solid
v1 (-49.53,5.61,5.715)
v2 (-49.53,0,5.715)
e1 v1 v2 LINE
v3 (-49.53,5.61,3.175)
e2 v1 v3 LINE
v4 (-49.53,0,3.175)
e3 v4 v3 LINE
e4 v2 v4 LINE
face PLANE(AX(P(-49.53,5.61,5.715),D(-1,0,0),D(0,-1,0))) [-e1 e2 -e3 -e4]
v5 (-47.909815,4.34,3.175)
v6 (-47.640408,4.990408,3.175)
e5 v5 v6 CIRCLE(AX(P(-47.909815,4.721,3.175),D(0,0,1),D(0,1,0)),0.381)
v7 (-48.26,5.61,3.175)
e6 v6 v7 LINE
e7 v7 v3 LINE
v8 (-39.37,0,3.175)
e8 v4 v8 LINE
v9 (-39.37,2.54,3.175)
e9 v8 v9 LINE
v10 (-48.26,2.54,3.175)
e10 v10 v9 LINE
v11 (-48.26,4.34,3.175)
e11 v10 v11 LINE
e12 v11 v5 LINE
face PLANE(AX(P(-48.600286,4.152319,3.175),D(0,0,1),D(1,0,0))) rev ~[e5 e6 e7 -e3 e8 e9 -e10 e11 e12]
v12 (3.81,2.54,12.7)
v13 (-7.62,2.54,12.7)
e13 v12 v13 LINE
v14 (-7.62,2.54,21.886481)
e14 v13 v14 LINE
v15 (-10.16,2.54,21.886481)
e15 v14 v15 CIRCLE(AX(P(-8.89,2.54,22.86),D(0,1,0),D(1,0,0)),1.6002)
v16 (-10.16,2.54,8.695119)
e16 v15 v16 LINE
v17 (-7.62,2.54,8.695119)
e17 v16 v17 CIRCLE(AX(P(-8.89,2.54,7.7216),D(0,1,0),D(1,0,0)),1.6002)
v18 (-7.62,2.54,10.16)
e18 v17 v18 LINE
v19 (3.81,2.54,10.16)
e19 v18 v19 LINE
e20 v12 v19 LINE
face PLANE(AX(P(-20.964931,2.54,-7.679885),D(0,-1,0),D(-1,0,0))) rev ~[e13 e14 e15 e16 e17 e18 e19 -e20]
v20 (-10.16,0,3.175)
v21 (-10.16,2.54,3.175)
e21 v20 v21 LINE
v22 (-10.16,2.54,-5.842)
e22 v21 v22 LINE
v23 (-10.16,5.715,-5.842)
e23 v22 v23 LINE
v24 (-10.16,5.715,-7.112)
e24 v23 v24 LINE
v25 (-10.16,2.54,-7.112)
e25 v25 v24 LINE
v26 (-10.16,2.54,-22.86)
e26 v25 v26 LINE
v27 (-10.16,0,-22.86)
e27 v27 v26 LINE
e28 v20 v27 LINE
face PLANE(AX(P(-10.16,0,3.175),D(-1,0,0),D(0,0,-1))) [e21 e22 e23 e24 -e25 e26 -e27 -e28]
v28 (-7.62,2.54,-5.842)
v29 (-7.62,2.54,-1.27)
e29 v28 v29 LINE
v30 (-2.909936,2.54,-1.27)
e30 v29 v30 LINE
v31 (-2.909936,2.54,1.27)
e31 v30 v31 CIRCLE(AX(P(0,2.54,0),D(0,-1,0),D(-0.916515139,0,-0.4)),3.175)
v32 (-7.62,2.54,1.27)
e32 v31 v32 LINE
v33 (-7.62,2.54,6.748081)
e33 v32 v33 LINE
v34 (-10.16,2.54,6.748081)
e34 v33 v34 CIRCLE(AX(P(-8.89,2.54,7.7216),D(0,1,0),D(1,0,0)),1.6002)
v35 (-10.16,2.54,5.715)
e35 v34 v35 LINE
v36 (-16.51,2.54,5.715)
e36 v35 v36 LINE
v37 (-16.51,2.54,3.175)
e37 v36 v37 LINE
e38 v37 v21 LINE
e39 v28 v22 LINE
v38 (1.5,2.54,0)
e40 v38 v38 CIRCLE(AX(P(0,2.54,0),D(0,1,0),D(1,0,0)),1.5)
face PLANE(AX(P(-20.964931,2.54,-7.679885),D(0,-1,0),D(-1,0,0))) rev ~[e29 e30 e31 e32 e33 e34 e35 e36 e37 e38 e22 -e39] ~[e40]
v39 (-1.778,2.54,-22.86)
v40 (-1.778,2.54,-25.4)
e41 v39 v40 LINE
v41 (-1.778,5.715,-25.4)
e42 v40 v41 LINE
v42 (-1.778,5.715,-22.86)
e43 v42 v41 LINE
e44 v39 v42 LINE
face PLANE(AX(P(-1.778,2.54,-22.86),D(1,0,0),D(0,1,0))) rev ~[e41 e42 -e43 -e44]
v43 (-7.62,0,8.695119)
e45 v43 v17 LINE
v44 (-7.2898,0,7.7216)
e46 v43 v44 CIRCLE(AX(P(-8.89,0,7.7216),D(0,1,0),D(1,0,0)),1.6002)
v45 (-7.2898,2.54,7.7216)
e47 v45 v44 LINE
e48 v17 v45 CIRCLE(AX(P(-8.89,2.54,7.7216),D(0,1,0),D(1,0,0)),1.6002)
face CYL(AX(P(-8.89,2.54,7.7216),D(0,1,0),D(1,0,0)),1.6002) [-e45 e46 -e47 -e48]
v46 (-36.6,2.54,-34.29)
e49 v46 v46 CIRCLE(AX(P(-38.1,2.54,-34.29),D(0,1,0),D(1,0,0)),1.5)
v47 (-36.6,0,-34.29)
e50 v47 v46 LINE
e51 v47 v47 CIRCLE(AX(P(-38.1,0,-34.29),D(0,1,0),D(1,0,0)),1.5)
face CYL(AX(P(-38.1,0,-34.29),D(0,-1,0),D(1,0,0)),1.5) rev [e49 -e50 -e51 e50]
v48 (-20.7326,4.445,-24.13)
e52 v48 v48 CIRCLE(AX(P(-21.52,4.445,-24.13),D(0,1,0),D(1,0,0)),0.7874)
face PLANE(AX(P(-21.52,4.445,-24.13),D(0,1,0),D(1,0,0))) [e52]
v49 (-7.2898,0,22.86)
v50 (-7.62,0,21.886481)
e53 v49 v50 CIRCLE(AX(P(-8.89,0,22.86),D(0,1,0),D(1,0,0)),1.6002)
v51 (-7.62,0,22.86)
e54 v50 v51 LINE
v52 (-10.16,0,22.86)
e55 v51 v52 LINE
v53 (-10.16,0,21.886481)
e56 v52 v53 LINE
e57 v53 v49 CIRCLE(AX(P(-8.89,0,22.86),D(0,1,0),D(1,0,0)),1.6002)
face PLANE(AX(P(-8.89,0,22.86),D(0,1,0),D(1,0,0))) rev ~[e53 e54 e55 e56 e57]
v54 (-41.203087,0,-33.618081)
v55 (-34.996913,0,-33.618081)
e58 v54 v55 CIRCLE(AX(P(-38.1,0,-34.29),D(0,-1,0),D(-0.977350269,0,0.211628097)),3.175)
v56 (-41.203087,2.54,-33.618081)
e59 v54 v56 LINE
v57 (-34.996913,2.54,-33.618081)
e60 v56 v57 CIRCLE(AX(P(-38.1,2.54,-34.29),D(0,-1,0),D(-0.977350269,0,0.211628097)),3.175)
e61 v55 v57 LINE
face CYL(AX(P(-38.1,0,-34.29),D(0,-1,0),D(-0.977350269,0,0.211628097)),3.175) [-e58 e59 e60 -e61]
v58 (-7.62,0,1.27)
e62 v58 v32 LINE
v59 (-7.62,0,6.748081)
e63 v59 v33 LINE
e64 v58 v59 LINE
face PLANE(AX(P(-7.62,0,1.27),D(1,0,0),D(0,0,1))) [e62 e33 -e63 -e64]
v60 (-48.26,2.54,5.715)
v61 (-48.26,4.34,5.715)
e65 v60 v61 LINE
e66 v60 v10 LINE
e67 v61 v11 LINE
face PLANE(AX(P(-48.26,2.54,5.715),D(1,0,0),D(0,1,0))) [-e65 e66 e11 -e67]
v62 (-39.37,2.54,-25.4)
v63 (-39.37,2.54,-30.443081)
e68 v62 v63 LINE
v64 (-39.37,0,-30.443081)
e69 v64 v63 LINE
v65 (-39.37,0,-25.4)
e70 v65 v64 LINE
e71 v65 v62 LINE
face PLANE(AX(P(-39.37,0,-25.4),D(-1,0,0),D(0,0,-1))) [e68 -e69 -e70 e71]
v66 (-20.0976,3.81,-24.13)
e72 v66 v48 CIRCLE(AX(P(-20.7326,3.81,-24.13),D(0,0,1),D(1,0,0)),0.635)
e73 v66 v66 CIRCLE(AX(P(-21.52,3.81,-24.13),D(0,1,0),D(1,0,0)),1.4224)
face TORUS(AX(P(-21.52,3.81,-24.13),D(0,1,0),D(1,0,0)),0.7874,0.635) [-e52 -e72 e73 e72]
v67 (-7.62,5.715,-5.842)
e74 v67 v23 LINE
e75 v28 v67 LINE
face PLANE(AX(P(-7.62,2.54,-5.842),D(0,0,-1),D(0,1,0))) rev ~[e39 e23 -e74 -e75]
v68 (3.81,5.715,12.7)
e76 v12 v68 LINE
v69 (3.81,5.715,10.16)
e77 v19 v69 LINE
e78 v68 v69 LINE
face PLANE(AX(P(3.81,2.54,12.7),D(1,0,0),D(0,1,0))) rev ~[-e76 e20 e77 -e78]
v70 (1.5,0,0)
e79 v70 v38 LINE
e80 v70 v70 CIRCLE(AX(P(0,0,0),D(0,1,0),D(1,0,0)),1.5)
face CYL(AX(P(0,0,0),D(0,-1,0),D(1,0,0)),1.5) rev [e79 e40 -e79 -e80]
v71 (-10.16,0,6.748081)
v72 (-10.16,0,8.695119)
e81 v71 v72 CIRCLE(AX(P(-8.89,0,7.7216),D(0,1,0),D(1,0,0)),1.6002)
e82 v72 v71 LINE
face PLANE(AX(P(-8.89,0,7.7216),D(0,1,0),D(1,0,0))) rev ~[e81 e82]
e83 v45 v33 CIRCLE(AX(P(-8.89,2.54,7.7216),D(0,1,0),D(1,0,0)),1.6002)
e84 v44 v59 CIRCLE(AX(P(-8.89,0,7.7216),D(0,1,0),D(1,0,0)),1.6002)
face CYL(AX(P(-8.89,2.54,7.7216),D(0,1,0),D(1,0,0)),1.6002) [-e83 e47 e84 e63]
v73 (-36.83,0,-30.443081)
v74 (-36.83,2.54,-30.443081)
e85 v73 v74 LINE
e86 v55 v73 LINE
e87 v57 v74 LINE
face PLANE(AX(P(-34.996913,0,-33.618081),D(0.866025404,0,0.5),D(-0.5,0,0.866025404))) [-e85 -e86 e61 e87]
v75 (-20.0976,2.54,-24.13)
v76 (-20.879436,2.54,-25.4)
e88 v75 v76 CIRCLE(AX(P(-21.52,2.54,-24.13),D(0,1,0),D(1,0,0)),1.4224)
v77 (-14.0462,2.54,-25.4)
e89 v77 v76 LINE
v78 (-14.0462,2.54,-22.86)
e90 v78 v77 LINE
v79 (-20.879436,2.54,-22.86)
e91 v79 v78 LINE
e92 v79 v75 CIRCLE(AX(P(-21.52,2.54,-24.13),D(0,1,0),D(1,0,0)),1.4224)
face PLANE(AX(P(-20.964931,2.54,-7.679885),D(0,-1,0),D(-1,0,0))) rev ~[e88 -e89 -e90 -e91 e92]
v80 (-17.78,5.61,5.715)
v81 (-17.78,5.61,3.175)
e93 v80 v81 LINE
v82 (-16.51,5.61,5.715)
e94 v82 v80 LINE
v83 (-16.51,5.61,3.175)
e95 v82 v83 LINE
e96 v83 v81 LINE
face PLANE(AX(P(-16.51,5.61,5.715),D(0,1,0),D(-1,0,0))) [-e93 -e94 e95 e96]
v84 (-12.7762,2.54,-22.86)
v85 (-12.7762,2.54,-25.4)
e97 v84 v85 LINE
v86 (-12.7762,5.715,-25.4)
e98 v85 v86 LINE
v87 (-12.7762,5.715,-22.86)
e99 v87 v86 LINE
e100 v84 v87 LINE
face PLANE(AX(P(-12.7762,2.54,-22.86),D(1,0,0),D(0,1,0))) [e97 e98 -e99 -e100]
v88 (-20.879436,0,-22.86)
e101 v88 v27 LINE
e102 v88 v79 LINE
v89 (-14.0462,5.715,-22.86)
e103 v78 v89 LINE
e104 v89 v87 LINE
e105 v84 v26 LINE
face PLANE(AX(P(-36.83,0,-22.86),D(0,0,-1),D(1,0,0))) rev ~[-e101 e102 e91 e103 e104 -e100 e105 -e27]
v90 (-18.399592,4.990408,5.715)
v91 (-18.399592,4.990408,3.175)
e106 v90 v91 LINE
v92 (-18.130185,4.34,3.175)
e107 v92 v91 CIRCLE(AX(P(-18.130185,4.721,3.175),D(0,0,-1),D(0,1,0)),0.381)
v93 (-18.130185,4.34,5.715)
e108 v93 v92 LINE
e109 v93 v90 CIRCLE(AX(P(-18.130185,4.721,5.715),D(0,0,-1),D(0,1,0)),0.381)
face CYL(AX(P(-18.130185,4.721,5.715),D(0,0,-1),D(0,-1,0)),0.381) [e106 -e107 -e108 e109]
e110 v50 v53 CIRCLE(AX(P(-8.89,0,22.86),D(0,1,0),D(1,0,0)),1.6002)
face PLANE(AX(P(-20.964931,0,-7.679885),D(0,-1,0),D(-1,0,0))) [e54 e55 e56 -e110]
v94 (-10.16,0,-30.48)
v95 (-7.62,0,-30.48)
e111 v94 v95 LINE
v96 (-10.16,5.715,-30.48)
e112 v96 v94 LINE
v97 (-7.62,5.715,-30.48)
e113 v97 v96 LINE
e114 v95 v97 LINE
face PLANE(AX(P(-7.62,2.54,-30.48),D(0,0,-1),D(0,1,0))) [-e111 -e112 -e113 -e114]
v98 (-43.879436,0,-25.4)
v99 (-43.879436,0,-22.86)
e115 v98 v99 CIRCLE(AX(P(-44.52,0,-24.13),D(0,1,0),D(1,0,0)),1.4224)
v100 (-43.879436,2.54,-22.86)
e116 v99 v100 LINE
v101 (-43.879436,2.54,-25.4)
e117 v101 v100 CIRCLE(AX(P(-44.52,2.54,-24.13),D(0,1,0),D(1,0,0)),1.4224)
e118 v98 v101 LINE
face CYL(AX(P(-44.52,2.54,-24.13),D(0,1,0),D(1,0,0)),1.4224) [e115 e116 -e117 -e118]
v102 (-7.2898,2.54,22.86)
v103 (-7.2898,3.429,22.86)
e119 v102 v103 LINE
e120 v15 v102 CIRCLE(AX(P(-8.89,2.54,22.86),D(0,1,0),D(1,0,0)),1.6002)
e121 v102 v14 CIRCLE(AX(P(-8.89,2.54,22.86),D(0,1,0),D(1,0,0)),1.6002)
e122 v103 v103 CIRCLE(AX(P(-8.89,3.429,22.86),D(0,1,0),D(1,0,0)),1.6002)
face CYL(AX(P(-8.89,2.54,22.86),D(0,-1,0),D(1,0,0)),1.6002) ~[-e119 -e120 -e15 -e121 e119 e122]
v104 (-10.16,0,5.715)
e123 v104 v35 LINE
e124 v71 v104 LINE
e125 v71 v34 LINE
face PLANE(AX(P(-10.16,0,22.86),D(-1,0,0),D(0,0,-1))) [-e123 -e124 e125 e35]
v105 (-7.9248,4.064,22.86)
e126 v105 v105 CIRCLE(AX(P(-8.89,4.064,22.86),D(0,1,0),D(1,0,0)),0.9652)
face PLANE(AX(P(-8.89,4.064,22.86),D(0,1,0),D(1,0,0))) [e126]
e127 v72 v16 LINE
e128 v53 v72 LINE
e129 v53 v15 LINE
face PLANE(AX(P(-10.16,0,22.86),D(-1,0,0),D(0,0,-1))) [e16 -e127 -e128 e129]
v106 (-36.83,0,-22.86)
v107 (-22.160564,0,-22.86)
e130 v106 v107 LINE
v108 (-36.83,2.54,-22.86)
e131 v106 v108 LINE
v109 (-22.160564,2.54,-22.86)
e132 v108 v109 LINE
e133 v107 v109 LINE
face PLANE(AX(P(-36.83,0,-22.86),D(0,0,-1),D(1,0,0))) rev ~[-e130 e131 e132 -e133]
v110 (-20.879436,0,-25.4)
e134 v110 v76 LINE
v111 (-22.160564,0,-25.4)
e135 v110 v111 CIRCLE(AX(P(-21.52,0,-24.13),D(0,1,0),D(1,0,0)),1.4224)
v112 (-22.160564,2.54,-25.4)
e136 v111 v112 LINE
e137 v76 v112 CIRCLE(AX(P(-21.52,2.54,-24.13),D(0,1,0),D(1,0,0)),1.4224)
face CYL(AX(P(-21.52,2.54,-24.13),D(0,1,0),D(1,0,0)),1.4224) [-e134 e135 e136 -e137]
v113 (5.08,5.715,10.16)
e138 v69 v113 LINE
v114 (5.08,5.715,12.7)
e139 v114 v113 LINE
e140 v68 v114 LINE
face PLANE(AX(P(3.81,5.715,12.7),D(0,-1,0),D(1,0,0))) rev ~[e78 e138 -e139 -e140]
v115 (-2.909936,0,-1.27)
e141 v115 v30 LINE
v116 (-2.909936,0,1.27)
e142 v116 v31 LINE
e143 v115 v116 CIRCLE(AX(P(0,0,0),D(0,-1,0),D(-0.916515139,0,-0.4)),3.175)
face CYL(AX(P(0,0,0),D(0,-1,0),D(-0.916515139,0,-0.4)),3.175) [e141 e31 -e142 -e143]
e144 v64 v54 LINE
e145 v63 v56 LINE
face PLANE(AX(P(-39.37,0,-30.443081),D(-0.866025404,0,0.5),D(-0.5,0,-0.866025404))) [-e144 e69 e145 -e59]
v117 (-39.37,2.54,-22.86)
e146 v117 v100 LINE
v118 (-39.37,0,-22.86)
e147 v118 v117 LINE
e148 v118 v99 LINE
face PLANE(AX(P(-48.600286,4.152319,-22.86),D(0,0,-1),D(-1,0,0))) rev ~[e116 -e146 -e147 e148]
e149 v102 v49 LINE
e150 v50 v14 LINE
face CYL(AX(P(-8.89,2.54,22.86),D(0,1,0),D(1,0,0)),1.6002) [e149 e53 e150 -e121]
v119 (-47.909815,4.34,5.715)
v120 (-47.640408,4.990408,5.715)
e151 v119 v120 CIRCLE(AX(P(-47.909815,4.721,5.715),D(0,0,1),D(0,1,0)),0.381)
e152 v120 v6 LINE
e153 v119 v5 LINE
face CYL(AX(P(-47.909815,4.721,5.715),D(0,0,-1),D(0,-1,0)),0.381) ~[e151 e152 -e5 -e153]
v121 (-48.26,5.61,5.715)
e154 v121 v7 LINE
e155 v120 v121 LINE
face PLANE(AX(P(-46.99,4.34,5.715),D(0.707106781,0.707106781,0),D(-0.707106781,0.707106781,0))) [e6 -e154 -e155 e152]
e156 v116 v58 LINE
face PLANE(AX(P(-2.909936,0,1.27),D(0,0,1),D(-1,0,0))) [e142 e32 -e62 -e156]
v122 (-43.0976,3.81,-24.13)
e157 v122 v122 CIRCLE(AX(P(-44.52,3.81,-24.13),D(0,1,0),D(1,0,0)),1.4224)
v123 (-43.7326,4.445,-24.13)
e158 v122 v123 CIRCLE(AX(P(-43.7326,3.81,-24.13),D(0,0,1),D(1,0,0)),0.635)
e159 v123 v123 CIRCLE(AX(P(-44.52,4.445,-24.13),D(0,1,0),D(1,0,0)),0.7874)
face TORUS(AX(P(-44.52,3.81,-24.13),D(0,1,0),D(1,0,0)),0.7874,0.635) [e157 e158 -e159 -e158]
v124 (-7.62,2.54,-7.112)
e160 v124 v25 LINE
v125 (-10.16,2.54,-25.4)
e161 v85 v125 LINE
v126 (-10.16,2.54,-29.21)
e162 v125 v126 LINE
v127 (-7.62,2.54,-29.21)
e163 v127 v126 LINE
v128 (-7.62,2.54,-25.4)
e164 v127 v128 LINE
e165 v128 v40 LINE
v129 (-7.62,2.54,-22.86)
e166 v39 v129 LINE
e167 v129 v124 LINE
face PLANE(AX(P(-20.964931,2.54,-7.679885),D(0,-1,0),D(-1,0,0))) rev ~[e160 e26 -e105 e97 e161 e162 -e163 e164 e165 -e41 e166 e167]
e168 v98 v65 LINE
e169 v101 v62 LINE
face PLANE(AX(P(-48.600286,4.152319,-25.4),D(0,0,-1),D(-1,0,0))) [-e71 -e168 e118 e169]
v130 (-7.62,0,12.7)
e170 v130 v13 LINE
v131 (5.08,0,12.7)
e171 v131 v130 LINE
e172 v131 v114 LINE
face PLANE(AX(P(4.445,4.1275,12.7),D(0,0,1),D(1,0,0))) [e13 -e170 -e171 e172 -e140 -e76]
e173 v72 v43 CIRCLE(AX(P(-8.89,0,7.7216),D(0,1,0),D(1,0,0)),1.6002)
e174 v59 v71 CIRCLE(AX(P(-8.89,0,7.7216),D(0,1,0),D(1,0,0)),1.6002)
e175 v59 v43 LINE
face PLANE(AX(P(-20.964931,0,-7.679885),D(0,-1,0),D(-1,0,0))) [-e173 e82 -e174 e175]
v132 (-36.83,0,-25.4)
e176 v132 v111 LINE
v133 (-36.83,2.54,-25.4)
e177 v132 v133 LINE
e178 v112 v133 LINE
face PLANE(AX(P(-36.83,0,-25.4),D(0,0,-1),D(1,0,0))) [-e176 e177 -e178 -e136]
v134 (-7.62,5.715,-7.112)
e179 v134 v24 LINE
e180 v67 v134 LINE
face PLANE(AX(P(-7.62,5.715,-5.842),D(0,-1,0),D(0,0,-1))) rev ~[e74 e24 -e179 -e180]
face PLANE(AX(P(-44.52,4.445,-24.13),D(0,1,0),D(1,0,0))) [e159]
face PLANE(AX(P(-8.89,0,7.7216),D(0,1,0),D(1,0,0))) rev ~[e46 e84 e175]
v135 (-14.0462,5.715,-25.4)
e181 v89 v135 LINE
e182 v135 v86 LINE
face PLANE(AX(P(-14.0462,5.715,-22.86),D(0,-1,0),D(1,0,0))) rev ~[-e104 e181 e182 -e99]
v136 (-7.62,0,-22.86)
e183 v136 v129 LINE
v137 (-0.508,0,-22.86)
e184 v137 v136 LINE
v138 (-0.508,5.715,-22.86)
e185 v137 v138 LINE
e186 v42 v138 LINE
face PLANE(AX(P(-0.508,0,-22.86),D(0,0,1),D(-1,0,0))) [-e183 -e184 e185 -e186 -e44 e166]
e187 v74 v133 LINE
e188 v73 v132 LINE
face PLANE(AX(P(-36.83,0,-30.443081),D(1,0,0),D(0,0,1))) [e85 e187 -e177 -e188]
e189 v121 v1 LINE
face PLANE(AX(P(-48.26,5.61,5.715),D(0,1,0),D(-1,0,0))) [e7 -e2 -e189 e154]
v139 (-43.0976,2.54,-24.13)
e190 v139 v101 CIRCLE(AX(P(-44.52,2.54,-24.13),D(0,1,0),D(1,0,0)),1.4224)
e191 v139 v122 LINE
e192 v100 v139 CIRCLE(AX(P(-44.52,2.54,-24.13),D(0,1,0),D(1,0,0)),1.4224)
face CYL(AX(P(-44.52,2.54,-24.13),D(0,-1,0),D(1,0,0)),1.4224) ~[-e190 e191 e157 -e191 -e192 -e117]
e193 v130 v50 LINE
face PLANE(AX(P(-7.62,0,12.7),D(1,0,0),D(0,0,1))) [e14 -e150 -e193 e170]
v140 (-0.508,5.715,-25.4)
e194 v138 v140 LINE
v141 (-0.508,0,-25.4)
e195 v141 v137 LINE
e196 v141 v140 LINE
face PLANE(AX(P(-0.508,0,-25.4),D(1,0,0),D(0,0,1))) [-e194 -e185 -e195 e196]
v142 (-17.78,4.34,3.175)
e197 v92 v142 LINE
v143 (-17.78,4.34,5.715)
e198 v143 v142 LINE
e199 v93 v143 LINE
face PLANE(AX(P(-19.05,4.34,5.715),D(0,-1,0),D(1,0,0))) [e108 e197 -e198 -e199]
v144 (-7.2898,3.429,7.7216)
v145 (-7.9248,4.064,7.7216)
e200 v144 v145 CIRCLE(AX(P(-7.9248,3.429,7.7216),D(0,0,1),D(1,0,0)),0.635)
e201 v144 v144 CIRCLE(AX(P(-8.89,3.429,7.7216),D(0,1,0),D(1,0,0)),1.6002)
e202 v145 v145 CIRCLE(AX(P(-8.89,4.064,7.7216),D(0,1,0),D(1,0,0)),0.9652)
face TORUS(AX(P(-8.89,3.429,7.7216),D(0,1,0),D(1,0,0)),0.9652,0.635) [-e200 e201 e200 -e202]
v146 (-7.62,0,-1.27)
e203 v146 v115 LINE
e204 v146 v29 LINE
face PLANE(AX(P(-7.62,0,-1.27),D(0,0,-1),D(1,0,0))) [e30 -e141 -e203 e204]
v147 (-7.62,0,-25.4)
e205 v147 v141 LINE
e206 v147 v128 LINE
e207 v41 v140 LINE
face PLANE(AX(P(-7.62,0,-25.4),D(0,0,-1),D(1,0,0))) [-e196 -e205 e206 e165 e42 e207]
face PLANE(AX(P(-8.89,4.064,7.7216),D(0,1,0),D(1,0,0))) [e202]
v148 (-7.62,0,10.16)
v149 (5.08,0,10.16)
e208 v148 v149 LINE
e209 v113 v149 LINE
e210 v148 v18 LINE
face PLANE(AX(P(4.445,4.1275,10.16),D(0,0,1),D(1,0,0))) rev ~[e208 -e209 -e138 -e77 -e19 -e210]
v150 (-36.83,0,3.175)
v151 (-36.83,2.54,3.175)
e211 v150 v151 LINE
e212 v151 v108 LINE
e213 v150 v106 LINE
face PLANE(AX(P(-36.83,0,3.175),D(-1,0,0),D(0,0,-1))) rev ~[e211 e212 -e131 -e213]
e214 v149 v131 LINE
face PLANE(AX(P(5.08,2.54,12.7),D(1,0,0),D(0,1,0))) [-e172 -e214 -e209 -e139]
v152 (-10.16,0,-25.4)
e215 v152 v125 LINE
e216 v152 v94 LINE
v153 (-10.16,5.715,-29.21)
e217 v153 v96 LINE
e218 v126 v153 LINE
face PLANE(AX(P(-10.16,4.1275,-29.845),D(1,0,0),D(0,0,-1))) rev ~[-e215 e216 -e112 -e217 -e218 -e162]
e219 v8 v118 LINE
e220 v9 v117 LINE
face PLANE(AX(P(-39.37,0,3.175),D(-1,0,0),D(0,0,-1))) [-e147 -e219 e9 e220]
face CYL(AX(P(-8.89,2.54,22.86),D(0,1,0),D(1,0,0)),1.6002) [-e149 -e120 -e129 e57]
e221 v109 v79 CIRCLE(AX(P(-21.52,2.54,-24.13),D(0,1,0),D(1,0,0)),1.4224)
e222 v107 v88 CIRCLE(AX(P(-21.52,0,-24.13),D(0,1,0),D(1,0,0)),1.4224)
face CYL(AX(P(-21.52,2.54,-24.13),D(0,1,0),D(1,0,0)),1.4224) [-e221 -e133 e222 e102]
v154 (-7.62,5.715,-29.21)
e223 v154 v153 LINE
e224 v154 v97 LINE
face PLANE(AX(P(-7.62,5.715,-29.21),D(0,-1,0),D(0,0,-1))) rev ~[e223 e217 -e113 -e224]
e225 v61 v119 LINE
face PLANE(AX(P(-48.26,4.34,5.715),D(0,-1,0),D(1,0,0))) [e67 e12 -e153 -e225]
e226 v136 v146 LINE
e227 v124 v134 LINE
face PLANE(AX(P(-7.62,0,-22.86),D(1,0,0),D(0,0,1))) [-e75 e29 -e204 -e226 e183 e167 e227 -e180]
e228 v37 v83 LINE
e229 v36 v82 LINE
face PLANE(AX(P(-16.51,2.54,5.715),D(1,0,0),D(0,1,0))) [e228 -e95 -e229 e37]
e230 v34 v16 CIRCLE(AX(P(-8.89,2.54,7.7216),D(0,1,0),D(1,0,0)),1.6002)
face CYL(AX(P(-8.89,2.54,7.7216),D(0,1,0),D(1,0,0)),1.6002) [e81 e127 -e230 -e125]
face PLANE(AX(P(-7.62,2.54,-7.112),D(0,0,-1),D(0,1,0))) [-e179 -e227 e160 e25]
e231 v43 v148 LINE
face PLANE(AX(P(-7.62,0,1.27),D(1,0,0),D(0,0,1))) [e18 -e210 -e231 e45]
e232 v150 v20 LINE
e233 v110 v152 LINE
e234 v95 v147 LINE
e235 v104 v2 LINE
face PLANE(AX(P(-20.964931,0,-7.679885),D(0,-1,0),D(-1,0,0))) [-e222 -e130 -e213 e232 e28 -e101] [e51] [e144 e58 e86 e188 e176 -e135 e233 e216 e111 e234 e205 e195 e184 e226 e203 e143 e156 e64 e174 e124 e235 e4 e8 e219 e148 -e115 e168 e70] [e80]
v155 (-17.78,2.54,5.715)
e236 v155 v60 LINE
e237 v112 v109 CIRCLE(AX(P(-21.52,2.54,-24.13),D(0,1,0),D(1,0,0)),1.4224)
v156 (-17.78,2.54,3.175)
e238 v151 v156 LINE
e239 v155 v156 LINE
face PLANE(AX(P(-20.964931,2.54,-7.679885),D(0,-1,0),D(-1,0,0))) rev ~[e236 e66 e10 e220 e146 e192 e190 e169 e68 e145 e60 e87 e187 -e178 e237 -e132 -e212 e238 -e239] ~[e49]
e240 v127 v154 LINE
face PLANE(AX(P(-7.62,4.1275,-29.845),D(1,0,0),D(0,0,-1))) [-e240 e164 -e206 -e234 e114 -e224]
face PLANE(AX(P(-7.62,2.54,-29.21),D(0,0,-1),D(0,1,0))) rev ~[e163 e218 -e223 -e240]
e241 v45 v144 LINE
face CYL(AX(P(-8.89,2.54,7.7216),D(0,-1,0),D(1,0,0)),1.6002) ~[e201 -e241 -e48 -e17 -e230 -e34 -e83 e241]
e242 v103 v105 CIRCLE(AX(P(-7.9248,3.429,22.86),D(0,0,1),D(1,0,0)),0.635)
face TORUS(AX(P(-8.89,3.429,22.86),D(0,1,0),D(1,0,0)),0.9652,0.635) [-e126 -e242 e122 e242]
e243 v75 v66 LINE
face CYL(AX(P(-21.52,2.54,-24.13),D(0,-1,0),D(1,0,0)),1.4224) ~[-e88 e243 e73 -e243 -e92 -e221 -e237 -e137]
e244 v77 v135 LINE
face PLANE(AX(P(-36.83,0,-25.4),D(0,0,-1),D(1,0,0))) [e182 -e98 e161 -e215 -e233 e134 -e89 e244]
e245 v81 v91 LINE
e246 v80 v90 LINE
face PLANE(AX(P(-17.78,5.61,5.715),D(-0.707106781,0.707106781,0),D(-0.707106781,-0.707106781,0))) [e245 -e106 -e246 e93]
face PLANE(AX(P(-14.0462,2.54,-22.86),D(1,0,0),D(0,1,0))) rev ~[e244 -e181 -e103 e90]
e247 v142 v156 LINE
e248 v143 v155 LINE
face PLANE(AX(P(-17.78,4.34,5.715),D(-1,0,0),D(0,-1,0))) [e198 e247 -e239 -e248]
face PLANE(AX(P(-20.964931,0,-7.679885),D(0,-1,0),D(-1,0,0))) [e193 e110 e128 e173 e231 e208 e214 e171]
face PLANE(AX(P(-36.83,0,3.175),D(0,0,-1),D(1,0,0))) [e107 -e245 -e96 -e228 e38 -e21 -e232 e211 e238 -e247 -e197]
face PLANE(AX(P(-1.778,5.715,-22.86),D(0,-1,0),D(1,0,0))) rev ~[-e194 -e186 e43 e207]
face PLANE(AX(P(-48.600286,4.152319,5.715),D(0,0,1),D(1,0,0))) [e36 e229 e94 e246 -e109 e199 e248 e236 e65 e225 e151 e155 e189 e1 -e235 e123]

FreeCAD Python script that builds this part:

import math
import FreeCAD as App
import Part
import Sketcher
Q = App.Units.Quantity


def edges_at(feature, points):
    """Names of the edges that pass closest to the given points."""
    edges = feature.Shape.Edges
    near = lambda p: min(range(len(edges)), key=lambda i: edges[i].distToShape(Part.Vertex(*p))[0])
    return sorted({f"Edge{near(p) + 1}" for p in points})

doc = App.newDocument("Part")
params = doc.addObject("Spreadsheet::Sheet", "Params")
for row, (alias, value) in enumerate([
    ("sketch1_width", "0.1 in"),
    ("sketch1_width2", "0.5 in"),
    ("sketch1_width3", "0.4 in"),
    ("sketch1_height", "0.2 in"),
    ("sketch1_radius", "0.125 in"),
    ("pad1_length", "0.1 in"),
    ("sketch2_width", "0.05 in"),
    ("sketch2_height", "0.125 in"),
    ("pad2_length", "0.1 in"),
    ("sketch3_width", "0.05 in"),
    ("pad3_length", "0.1 in"),
    ("sketch4_height", "0.05 in"),
    ("sketch4_width", "0.125 in"),
    ("pad4_length", "0.1 in"),
    ("sketch5_width", "0.05 in"),
    ("sketch5_height", "0.125 in"),
    ("pad5_length", "0.1 in"),
    ("fillet_radius", "0.015 in"),
    ("pocket1_length", "0.1 in"),
    ("sketch8_diameter", "0.112 in"),
    ("pad6_length", "0.075 in"),
    ("pad6_length2", "0.1 in"),
    ("sketch9_diameter", "0.126 in"),
    ("pad7_length", "0.06 in"),
    ("pad7_length2", "0.1 in"),
    ("fillet2_radius", "0.025 in"),
], start=1):
    params.set(f"A{row}", alias)
    params.set(f"B{row}", "=" + value)
    params.setAlias(f"B{row}", alias)

body = doc.addObject("PartDesign::Body", "Body")

# Sketch on XZ plane
sketch1 = body.newObject("Sketcher::SketchObject", "Sketch")
sketch1.AttachmentSupport = (doc.getObject("XZ_Plane"), [""])
sketch1.MapMode = "FlatFace"
sketch1.addGeometry([
    Part.LineSegment(App.Vector(-10.2, 5.7, 0), App.Vector(-10.2, 22.9, 0)),  # 0
    Part.LineSegment(App.Vector(-10.2, 22.9, 0), App.Vector(-7.6, 22.9, 0)),  # 1
    Part.LineSegment(App.Vector(-7.6, 22.9, 0), App.Vector(-7.6, 12.7, 0)),  # 2
    Part.LineSegment(App.Vector(-7.6, 12.7, 0), App.Vector(5.1, 12.7, 0)),  # 3
    Part.LineSegment(App.Vector(5.1, 12.7, 0), App.Vector(5.1, 10.2, 0)),  # 4
    Part.LineSegment(App.Vector(5.1, 10.2, 0), App.Vector(-7.6, 10.2, 0)),  # 5
    Part.LineSegment(App.Vector(-7.6, 10.2, 0), App.Vector(-7.6, 1.3, 0)),  # 6
    Part.LineSegment(App.Vector(-7.6, 1.3, 0), App.Vector(-2.9, 1.3, 0)),  # 7
    Part.ArcOfCircle(Part.Circle(App.Vector(0, 0, 0), App.Vector(0, 0, 1), 3.2), math.radians(-156), math.radians(156)),  # 8
    Part.LineSegment(App.Vector(-2.9, -1.3, 0), App.Vector(-7.6, -1.3, 0)),  # 9
    Part.LineSegment(App.Vector(-7.6, -1.3, 0), App.Vector(-7.6, -22.9, 0)),  # 10
    Part.LineSegment(App.Vector(-7.6, -22.9, 0), App.Vector(-0.5, -22.9, 0)),  # 11
    Part.LineSegment(App.Vector(-0.5, -22.9, 0), App.Vector(-0.5, -25.4, 0)),  # 12
    Part.LineSegment(App.Vector(-0.5, -25.4, 0), App.Vector(-7.6, -25.4, 0)),  # 13
    Part.LineSegment(App.Vector(-7.6, -25.4, 0), App.Vector(-7.6, -30.5, 0)),  # 14
    Part.LineSegment(App.Vector(-7.6, -30.5, 0), App.Vector(-10.2, -30.5, 0)),  # 15
    Part.LineSegment(App.Vector(-10.2, -30.5, 0), App.Vector(-10.2, -25.4, 0)),  # 16
    Part.LineSegment(App.Vector(-10.2, -25.4, 0), App.Vector(-36.8, -25.4, 0)),  # 17
    Part.LineSegment(App.Vector(-36.8, -25.4, 0), App.Vector(-36.8, -30.4, 0)),  # 18
    Part.LineSegment(App.Vector(-36.8, -30.4, 0), App.Vector(-35, -33.6, 0)),  # 19
    Part.ArcOfCircle(Part.Circle(App.Vector(-38.1, -34.3, 0), App.Vector(0, 0, 1), 3.2), math.radians(168), math.radians(372)),  # 20
    Part.LineSegment(App.Vector(-41.2, -33.6, 0), App.Vector(-39.4, -30.4, 0)),  # 21
    Part.LineSegment(App.Vector(-39.4, -30.4, 0), App.Vector(-39.4, -25.4, 0)),  # 22
    Part.LineSegment(App.Vector(-39.4, -25.4, 0), App.Vector(-49.5, -25.4, 0)),  # 23
    Part.LineSegment(App.Vector(-49.5, -25.4, 0), App.Vector(-49.5, -22.9, 0)),  # 24
    Part.LineSegment(App.Vector(-49.5, -22.9, 0), App.Vector(-39.4, -22.9, 0)),  # 25
    Part.LineSegment(App.Vector(-39.4, -22.9, 0), App.Vector(-39.4, 3.2, 0)),  # 26
    Part.LineSegment(App.Vector(-39.4, 3.2, 0), App.Vector(-49.5, 3.2, 0)),  # 27
    Part.LineSegment(App.Vector(-49.5, 3.2, 0), App.Vector(-49.5, 5.7, 0)),  # 28
    Part.LineSegment(App.Vector(-49.5, 5.7, 0), App.Vector(-10.2, 5.7, 0)),  # 29
    Part.Circle(App.Vector(0, 0, 0), App.Vector(0, 0, 1), 1.5),  # 30
    Part.LineSegment(App.Vector(-36.8, 3.2, 0), App.Vector(-36.8, -22.9, 0)),  # 31
    Part.LineSegment(App.Vector(-36.8, -22.9, 0), App.Vector(-10.2, -22.9, 0)),  # 32
    Part.LineSegment(App.Vector(-10.2, -22.9, 0), App.Vector(-10.2, 3.2, 0)),  # 33
    Part.LineSegment(App.Vector(-10.2, 3.2, 0), App.Vector(-36.8, 3.2, 0)),  # 34
    Part.Circle(App.Vector(-38.1, -34.3, 0), App.Vector(0, 0, 1), 1.5),  # 35
], False)
sketch1.addConstraint([
    Sketcher.Constraint("Coincident", 0, 2, 1, 1),
    Sketcher.Constraint("Coincident", 1, 2, 2, 1),
    Sketcher.Constraint("Coincident", 2, 2, 3, 1),
    Sketcher.Constraint("Coincident", 3, 2, 4, 1),
    Sketcher.Constraint("Coincident", 4, 2, 5, 1),
    Sketcher.Constraint("Coincident", 5, 2, 6, 1),
    Sketcher.Constraint("Coincident", 6, 2, 7, 1),
    Sketcher.Constraint("Coincident", 7, 2, 8, 2),
    Sketcher.Constraint("Coincident", 8, 1, 9, 1),
    Sketcher.Constraint("Coincident", 9, 2, 10, 1),
    Sketcher.Constraint("Coincident", 10, 2, 11, 1),
    Sketcher.Constraint("Coincident", 11, 2, 12, 1),
    Sketcher.Constraint("Coincident", 12, 2, 13, 1),
    Sketcher.Constraint("Coincident", 13, 2, 14, 1),
    Sketcher.Constraint("Coincident", 14, 2, 15, 1),
    Sketcher.Constraint("Coincident", 15, 2, 16, 1),
    Sketcher.Constraint("Coincident", 16, 2, 17, 1),
    Sketcher.Constraint("Coincident", 17, 2, 18, 1),
    Sketcher.Constraint("Coincident", 18, 2, 19, 1),
    Sketcher.Constraint("Coincident", 19, 2, 20, 2),
    Sketcher.Constraint("Coincident", 20, 1, 21, 1),
    Sketcher.Constraint("Coincident", 21, 2, 22, 1),
    Sketcher.Constraint("Coincident", 22, 2, 23, 1),
    Sketcher.Constraint("Coincident", 23, 2, 24, 1),
    Sketcher.Constraint("Coincident", 24, 2, 25, 1),
    Sketcher.Constraint("Coincident", 25, 2, 26, 1),
    Sketcher.Constraint("Coincident", 26, 2, 27, 1),
    Sketcher.Constraint("Coincident", 27, 2, 28, 1),
    Sketcher.Constraint("Coincident", 28, 2, 29, 1),
    Sketcher.Constraint("Coincident", 29, 2, 0, 1),
    Sketcher.Constraint("Coincident", 31, 2, 32, 1),
    Sketcher.Constraint("Coincident", 32, 2, 33, 1),
    Sketcher.Constraint("Coincident", 33, 2, 34, 1),
    Sketcher.Constraint("Coincident", 34, 2, 31, 1),
    Sketcher.Constraint("Vertical", 0),
    Sketcher.Constraint("Horizontal", 1),
    Sketcher.Constraint("Vertical", 2),
    Sketcher.Constraint("Horizontal", 3),
    Sketcher.Constraint("Vertical", 4),
    Sketcher.Constraint("Horizontal", 5),
    Sketcher.Constraint("Vertical", 6),
    Sketcher.Constraint("Horizontal", 7),
    Sketcher.Constraint("Horizontal", 9),
    Sketcher.Constraint("Vertical", 10),
    Sketcher.Constraint("Horizontal", 11),
    Sketcher.Constraint("Vertical", 12),
    Sketcher.Constraint("Horizontal", 13),
    Sketcher.Constraint("Vertical", 14),
    Sketcher.Constraint("Horizontal", 15),
    Sketcher.Constraint("Vertical", 16),
    Sketcher.Constraint("Horizontal", 17),
    Sketcher.Constraint("Vertical", 18),
    Sketcher.Constraint("Vertical", 22),
    Sketcher.Constraint("Horizontal", 23),
    Sketcher.Constraint("Vertical", 24),
    Sketcher.Constraint("Horizontal", 25),
    Sketcher.Constraint("Vertical", 26),
    Sketcher.Constraint("Horizontal", 27),
    Sketcher.Constraint("Vertical", 28),
    Sketcher.Constraint("Horizontal", 29),
    Sketcher.Constraint("Vertical", 31),
    Sketcher.Constraint("Horizontal", 32),
    Sketcher.Constraint("Vertical", 33),
    Sketcher.Constraint("Horizontal", 34),
    Sketcher.Constraint("Coincident", 8, 3, -1, 1),
    Sketcher.Constraint("Coincident", 30, 3, -1, 1),
    Sketcher.Constraint("Coincident", 35, 3, 20, 3),
    Sketcher.Constraint("Equal", 8, 20),
    Sketcher.Constraint("Equal", 30, 35),
    Sketcher.Constraint("Symmetric", 6, 2, 9, 2, -1),
    Sketcher.Constraint("Symmetric", 1, 2, 10, 2, -1),
    Sketcher.Constraint("Symmetric", 0, 2, 32, 2, -1),
    Sketcher.Constraint("Horizontal", 13, 2, 16, 2),
    Sketcher.Constraint("Horizontal", 19, 2, 20, 1),
    Sketcher.Constraint("Horizontal", 18, 2, 21, 2),
    Sketcher.Constraint("Horizontal", 17, 2, 22, 2),
    Sketcher.Constraint("Horizontal", 11, 2, 24, 2),
    Sketcher.Constraint("Horizontal", 27, 2, 33, 2),
    Sketcher.Constraint("Vertical", 10, 2, 13, 2),
    Sketcher.Constraint("Vertical", 0, 2, 15, 2),
    Sketcher.Constraint("Vertical", 22, 2, 25, 2),
    Sketcher.Constraint("Vertical", 24, 2, 27, 2),
    Sketcher.Constraint("Vertical", 18, 2, 31, 2),
    Sketcher.Constraint("Equal", 27, 2),
    Sketcher.Constraint("Equal", 15, 4),
    Sketcher.Constraint("Equal", 4, 12),
    Sketcher.Constraint("Equal", 24, 28),
    Sketcher.Constraint("Equal", 19, 21),
    Sketcher.Constraint("DistanceX", 1, 1, 1, 2, Q("0.1 in")),
    Sketcher.Constraint("DistanceX", 3, 1, 3, 2, Q("0.5 in")),
    Sketcher.Constraint("DistanceX", 23, 2, 23, 1, Q("0.4 in")),
    Sketcher.Constraint("DistanceY", 14, 2, 14, 1, Q("0.2 in")),
    Sketcher.Constraint("DistanceY", 12, 2, -1, 1, Q("1 in")),
    Sketcher.Constraint("Angle", 19, Q("-60 deg")),
    Sketcher.Constraint("Radius", 8, Q("0.125 in")),
    Sketcher.Constraint("DistanceX", 11, 1, 11, 2, Q("0.28 in")),
    Sketcher.Constraint("DistanceX", 17, 2, 17, 1, Q("1.05 in")),
    Sketcher.Constraint("DistanceX", 29, 1, 29, 2, Q("1.55 in")),
    Sketcher.Constraint("DistanceY", 6, 2, 6, 1, Q("0.35 in")),
    Sketcher.Constraint("DistanceX", 20, 3, -1, 1, Q("1.5 in")),
    Sketcher.Constraint("Diameter", 30, Q("3 mm")),
    Sketcher.Constraint("DistanceY", 0, 1, 0, 2, Q("0.675 in")),
    Sketcher.Constraint("DistanceY", 20, 3, -1, 1, Q("1.35 in")),
    Sketcher.Constraint("DistanceY", 19, 2, 18, 2, Q("0.125 in")),
])
sketch1.setExpression("Constraints[88]", "Params.sketch1_width")
sketch1.setExpression("Constraints[89]", "Params.sketch1_width2")
sketch1.setExpression("Constraints[90]", "Params.sketch1_width3")
sketch1.setExpression("Constraints[91]", "Params.sketch1_height")
sketch1.setExpression("Constraints[94]", "Params.sketch1_radius")
pad1 = body.newObject("PartDesign::Pad", "Pad")
pad1.Profile = sketch1
pad1.setExpression("Length", "Params.pad1_length")
pad1.Reversed = True

# Sketch on XY plane
sketch2 = body.newObject("Sketcher::SketchObject", "Sketch001")
sketch2.AttachmentSupport = (doc.getObject("XY_Plane"), [""])
sketch2.MapMode = "FlatFace"
sketch2.AttachmentOffset = App.Placement(App.Vector(0, 0, -0.9 * 25.4), App.Rotation())
sketch2.addGeometry([
    Part.LineSegment(App.Vector(-49.5, 5.6, 0), App.Vector(-49.5, 2.5, 0)),  # 0
    Part.LineSegment(App.Vector(-49.5, 2.5, 0), App.Vector(-48.3, 2.5, 0)),  # 1
    Part.LineSegment(App.Vector(-48.3, 2.5, 0), App.Vector(-48.3, 4.3, 0)),  # 2
    Part.LineSegment(App.Vector(-48.3, 4.3, 0), App.Vector(-47, 4.3, 0)),  # 3
    Part.LineSegment(App.Vector(-47, 4.3, 0), App.Vector(-48.3, 5.6, 0)),  # 4
    Part.LineSegment(App.Vector(-48.3, 5.6, 0), App.Vector(-49.5, 5.6, 0)),  # 5
    Part.LineSegment(App.Vector(-1.8, 5.7, 0), App.Vector(-1.8, 2.5, 0)),  # 6
    Part.LineSegment(App.Vector(-1.8, 2.5, 0), App.Vector(-0.5, 2.5, 0)),  # 7
    Part.LineSegment(App.Vector(-0.5, 2.5, 0), App.Vector(-0.5, 5.7, 0)),  # 8
    Part.LineSegment(App.Vector(-0.5, 5.7, 0), App.Vector(-1.8, 5.7, 0)),  # 9
    Part.LineSegment(App.Vector(-17.8, 2.5, 0), App.Vector(-16.5, 2.5, 0)),  # 10
    Part.LineSegment(App.Vector(-16.5, 2.5, 0), App.Vector(-16.5, 5.6, 0)),  # 11
    Part.LineSegment(App.Vector(-16.5, 5.6, 0), App.Vector(-17.8, 5.6, 0)),  # 12
    Part.LineSegment(App.Vector(-17.8, 5.6, 0), App.Vector(-19.1, 4.3, 0)),  # 13
    Part.LineSegment(App.Vector(-19.1, 4.3, 0), App.Vector(-17.8, 4.3, 0)),  # 14
    Part.LineSegment(App.Vector(-17.8, 4.3, 0), App.Vector(-17.8, 2.5, 0)),  # 15
    Part.LineSegment(App.Vector(-14, 5.7, 0), App.Vector(-14, 2.5, 0)),  # 16
    Part.LineSegment(App.Vector(-14, 2.5, 0), App.Vector(-12.8, 2.5, 0)),  # 17
    Part.LineSegment(App.Vector(-12.8, 2.5, 0), App.Vector(-12.8, 5.7, 0)),  # 18
    Part.LineSegment(App.Vector(-12.8, 5.7, 0), App.Vector(-14, 5.7, 0)),  # 19
], False)
sketch2.addConstraint([
    Sketcher.Constraint("Coincident", 0, 2, 1, 1),
    Sketcher.Constraint("Coincident", 1, 2, 2, 1),
    Sketcher.Constraint("Coincident", 2, 2, 3, 1),
    Sketcher.Constraint("Coincident", 3, 2, 4, 1),
    Sketcher.Constraint("Coincident", 4, 2, 5, 1),
    Sketcher.Constraint("Coincident", 5, 2, 0, 1),
    Sketcher.Constraint("Coincident", 6, 2, 7, 1),
    Sketcher.Constraint("Coincident", 7, 2, 8, 1),
    Sketcher.Constraint("Coincident", 8, 2, 9, 1),
    Sketcher.Constraint("Coincident", 9, 2, 6, 1),
    Sketcher.Constraint("Coincident", 10, 2, 11, 1),
    Sketcher.Constraint("Coincident", 11, 2, 12, 1),
    Sketcher.Constraint("Coincident", 12, 2, 13, 1),
    Sketcher.Constraint("Coincident", 13, 2, 14, 1),
    Sketcher.Constraint("Coincident", 14, 2, 15, 1),
    Sketcher.Constraint("Coincident", 15, 2, 10, 1),
    Sketcher.Constraint("Coincident", 16, 2, 17, 1),
    Sketcher.Constraint("Coincident", 17, 2, 18, 1),
    Sketcher.Constraint("Coincident", 18, 2, 19, 1),
    Sketcher.Constraint("Coincident", 19, 2, 16, 1),
    Sketcher.Constraint("Vertical", 0),
    Sketcher.Constraint("Horizontal", 1),
    Sketcher.Constraint("Vertical", 2),
    Sketcher.Constraint("Horizontal", 3),
    Sketcher.Constraint("Horizontal", 5),
    Sketcher.Constraint("Vertical", 6),
    Sketcher.Constraint("Horizontal", 7),
    Sketcher.Constraint("Vertical", 8),
    Sketcher.Constraint("Horizontal", 9),
    Sketcher.Constraint("Horizontal", 10),
    Sketcher.Constraint("Vertical", 11),
    Sketcher.Constraint("Horizontal", 12),
    Sketcher.Constraint("Horizontal", 14),
    Sketcher.Constraint("Vertical", 15),
    Sketcher.Constraint("Vertical", 16),
    Sketcher.Constraint("Horizontal", 17),
    Sketcher.Constraint("Vertical", 18),
    Sketcher.Constraint("Horizontal", 19),
    Sketcher.Constraint("Perpendicular", 4, 13),
    Sketcher.Constraint("Horizontal", 1, 2, 6, 2),
    Sketcher.Constraint("Horizontal", 7, 2, 10, 2),
    Sketcher.Constraint("Horizontal", 5, 2, 11, 2),
    Sketcher.Constraint("Horizontal", 3, 2, 13, 2),
    Sketcher.Constraint("Horizontal", 15, 2, 16, 2),
    Sketcher.Constraint("Horizontal", 9, 2, 18, 2),
    Sketcher.Constraint("Vertical", 2, 2, 4, 2),
    Sketcher.Constraint("Vertical", 12, 2, 14, 2),
    Sketcher.Constraint("Equal", 1, 3),
    Sketcher.Constraint("Equal", 5, 7),
    Sketcher.Constraint("Equal", 9, 10),
    Sketcher.Constraint("Equal", 12, 14),
    Sketcher.Constraint("Equal", 14, 17),
    Sketcher.Constraint("DistanceX", 1, 1, 1, 2, Q("0.05 in")),
    Sketcher.Constraint("DistanceY", -1, 1, 0, 2, Q("0.1 in")),
    Sketcher.Constraint("DistanceX", 1, 2, -1, 1, Q("1.9 in")),
    Sketcher.Constraint("DistanceX", 12, 2, -1, 1, Q("0.7 in")),
    Sketcher.Constraint("DistanceY", 6, 2, 6, 1, Q("0.125 in")),
    Sketcher.Constraint("DistanceX", 6, 2, -1, 1, Q("0.07 in")),
    Sketcher.Constraint("DistanceX", 16, 2, -1, 1, Q("0.553 in")),
    Sketcher.Constraint("DistanceY", 0, 2, 0, 1, Q("3.07 mm")),
])
sketch2.setExpression("Constraints[52]", "Params.sketch2_width")
sketch2.setExpression("Constraints[56]", "Params.sketch2_height")
pad2 = body.newObject("PartDesign::Pad", "Pad001")
pad2.Profile = sketch2
pad2.setExpression("Length", "Params.pad2_length")
pad2.Reversed = True

# Sketch on XY plane
sketch3 = body.newObject("Sketcher::SketchObject", "Sketch002")
sketch3.AttachmentSupport = (doc.getObject("XY_Plane"), [""])
sketch3.MapMode = "FlatFace"
sketch3.AttachmentOffset = App.Placement(App.Vector(0, 0, 0.225 * 25.4), App.Rotation())
sketch3.addGeometry([
    Part.LineSegment(App.Vector(-17.8, 2.5, 0), App.Vector(-16.5, 2.5, 0)),  # 0
    Part.LineSegment(App.Vector(-16.5, 2.5, 0), App.Vector(-16.5, 5.6, 0)),  # 1
    Part.LineSegment(App.Vector(-16.5, 5.6, 0), App.Vector(-17.8, 5.6, 0)),  # 2
    Part.LineSegment(App.Vector(-17.8, 5.6, 0), App.Vector(-19.1, 4.3, 0)),  # 3
    Part.LineSegment(App.Vector(-19.1, 4.3, 0), App.Vector(-17.8, 4.3, 0)),  # 4
    Part.LineSegment(App.Vector(-17.8, 4.3, 0), App.Vector(-17.8, 2.5, 0)),  # 5
    Part.LineSegment(App.Vector(-49.5, 2.5, 0), App.Vector(-48.3, 2.5, 0)),  # 6
    Part.LineSegment(App.Vector(-48.3, 2.5, 0), App.Vector(-48.3, 4.3, 0)),  # 7
    Part.LineSegment(App.Vector(-48.3, 4.3, 0), App.Vector(-47, 4.3, 0)),  # 8
    Part.LineSegment(App.Vector(-47, 4.3, 0), App.Vector(-48.3, 5.6, 0)),  # 9
    Part.LineSegment(App.Vector(-48.3, 5.6, 0), App.Vector(-49.5, 5.6, 0)),  # 10
    Part.LineSegment(App.Vector(-49.5, 5.6, 0), App.Vector(-49.5, 2.5, 0)),  # 11
], False)
sketch3.addConstraint([
    Sketcher.Constraint("Coincident", 0, 2, 1, 1),
    Sketcher.Constraint("Coincident", 1, 2, 2, 1),
    Sketcher.Constraint("Coincident", 2, 2, 3, 1),
    Sketcher.Constraint("Coincident", 3, 2, 4, 1),
    Sketcher.Constraint("Coincident", 4, 2, 5, 1),
    Sketcher.Constraint("Coincident", 5, 2, 0, 1),
    Sketcher.Constraint("Coincident", 6, 2, 7, 1),
    Sketcher.Constraint("Coincident", 7, 2, 8, 1),
    Sketcher.Constraint("Coincident", 8, 2, 9, 1),
    Sketcher.Constraint("Coincident", 9, 2, 10, 1),
    Sketcher.Constraint("Coincident", 10, 2, 11, 1),
    Sketcher.Constraint("Coincident", 11, 2, 6, 1),
    Sketcher.Constraint("Horizontal", 0),
    Sketcher.Constraint("Vertical", 1),
    Sketcher.Constraint("Horizontal", 2),
    Sketcher.Constraint("Horizontal", 4),
    Sketcher.Constraint("Vertical", 5),
    Sketcher.Constraint("Horizontal", 6),
    Sketcher.Constraint("Vertical", 7),
    Sketcher.Constraint("Horizontal", 8),
    Sketcher.Constraint("Horizontal", 10),
    Sketcher.Constraint("Vertical", 11),
    Sketcher.Constraint("Perpendicular", 3, 9),
    Sketcher.Constraint("Horizontal", 5, 2, 6, 2),
    Sketcher.Constraint("Horizontal", 4, 2, 7, 2),
    Sketcher.Constraint("Horizontal", 2, 2, 9, 2),
    Sketcher.Constraint("Vertical", 2, 2, 4, 2),
    Sketcher.Constraint("Vertical", 7, 2, 9, 2),
    Sketcher.Constraint("Equal", 2, 4),
    Sketcher.Constraint("Equal", 4, 6),
    Sketcher.Constraint("Equal", 6, 8),
    Sketcher.Constraint("DistanceX", 0, 1, 0, 2, Q("0.05 in")),
    Sketcher.Constraint("DistanceY", -1, 1, 0, 2, Q("0.1 in")),
    Sketcher.Constraint("DistanceX", 2, 2, -1, 1, Q("0.7 in")),
    Sketcher.Constraint("DistanceX", 6, 2, -1, 1, Q("1.9 in")),
    Sketcher.Constraint("DistanceY", 1, 1, 1, 2, Q("3.07 mm")),
])
sketch3.setExpression("Constraints[31]", "Params.sketch3_width")
pad3 = body.newObject("PartDesign::Pad", "Pad002")
pad3.Profile = sketch3
pad3.setExpression("Length", "Params.pad3_length")
pad3.Reversed = True

# Sketch on YZ plane
sketch4 = body.newObject("Sketcher::SketchObject", "Sketch003")
sketch4.AttachmentSupport = (doc.getObject("YZ_Plane"), [""])
sketch4.MapMode = "FlatFace"
sketch4.AttachmentOffset = App.Placement(App.Vector(0, 0, -0.3 * 25.4), App.Rotation())
sketch4.addGeometry([
    Part.LineSegment(App.Vector(5.7, -5.8, 0), App.Vector(2.5, -5.8, 0)),  # 0
    Part.LineSegment(App.Vector(2.5, -5.8, 0), App.Vector(2.5, -7.1, 0)),  # 1
    Part.LineSegment(App.Vector(2.5, -7.1, 0), App.Vector(5.7, -7.1, 0)),  # 2
    Part.LineSegment(App.Vector(5.7, -7.1, 0), App.Vector(5.7, -5.8, 0)),  # 3
    Part.LineSegment(App.Vector(5.7, -29.2, 0), App.Vector(2.5, -29.2, 0)),  # 4
    Part.LineSegment(App.Vector(2.5, -29.2, 0), App.Vector(2.5, -30.5, 0)),  # 5
    Part.LineSegment(App.Vector(2.5, -30.5, 0), App.Vector(5.7, -30.5, 0)),  # 6
    Part.LineSegment(App.Vector(5.7, -30.5, 0), App.Vector(5.7, -29.2, 0)),  # 7
], False)
sketch4.addConstraint([
    Sketcher.Constraint("Coincident", 0, 2, 1, 1),
    Sketcher.Constraint("Coincident", 1, 2, 2, 1),
    Sketcher.Constraint("Coincident", 2, 2, 3, 1),
    Sketcher.Constraint("Coincident", 3, 2, 0, 1),
    Sketcher.Constraint("Coincident", 4, 2, 5, 1),
    Sketcher.Constraint("Coincident", 5, 2, 6, 1),
    Sketcher.Constraint("Coincident", 6, 2, 7, 1),
    Sketcher.Constraint("Coincident", 7, 2, 4, 1),
    Sketcher.Constraint("Horizontal", 0),
    Sketcher.Constraint("Vertical", 1),
    Sketcher.Constraint("Horizontal", 2),
    Sketcher.Constraint("Vertical", 3),
    Sketcher.Constraint("Horizontal", 4),
    Sketcher.Constraint("Vertical", 5),
    Sketcher.Constraint("Horizontal", 6),
    Sketcher.Constraint("Vertical", 7),
    Sketcher.Constraint("Vertical", 1, 2, 4, 2),
    Sketcher.Constraint("Vertical", 3, 2, 6, 2),
    Sketcher.Constraint("Equal", 3, 5),
    Sketcher.Constraint("DistanceY", 1, 2, 1, 1, Q("0.05 in")),
    Sketcher.Constraint("DistanceX", -1, 1, 0, 2, Q("0.1 in")),
    Sketcher.Constraint("DistanceY", 5, 2, -1, 1, Q("1.2 in")),
    Sketcher.Constraint("DistanceX", 0, 2, 0, 1, Q("0.125 in")),
    Sketcher.Constraint("DistanceY", 0, 2, -1, 1, Q("0.23 in")),
])
sketch4.setExpression("Constraints[19]", "Params.sketch4_height")
sketch4.setExpression("Constraints[22]", "Params.sketch4_width")
pad4 = body.newObject("PartDesign::Pad", "Pad003")
pad4.Profile = sketch4
pad4.setExpression("Length", "Params.pad4_length")
pad4.Reversed = True

# Sketch on XY plane
sketch5 = body.newObject("Sketcher::SketchObject", "Sketch004")
sketch5.AttachmentSupport = (doc.getObject("XY_Plane"), [""])
sketch5.MapMode = "FlatFace"
sketch5.AttachmentOffset = App.Placement(App.Vector(0, 0, 0.5 * 25.4), App.Rotation())
sketch5.addGeometry([
    Part.LineSegment(App.Vector(3.8, 5.7, 0), App.Vector(3.8, 2.5, 0)),
    Part.LineSegment(App.Vector(3.8, 2.5, 0), App.Vector(5.1, 2.5, 0)),
    Part.LineSegment(App.Vector(5.1, 2.5, 0), App.Vector(5.1, 5.7, 0)),
    Part.LineSegment(App.Vector(5.1, 5.7, 0), App.Vector(3.8, 5.7, 0)),
], False)
sketch5.addConstraint([
    Sketcher.Constraint("Coincident", 0, 2, 1, 1),
    Sketcher.Constraint("Coincident", 1, 2, 2, 1),
    Sketcher.Constraint("Coincident", 2, 2, 3, 1),
    Sketcher.Constraint("Coincident", 3, 2, 0, 1),
    Sketcher.Constraint("Vertical", 0),
    Sketcher.Constraint("Horizontal", 1),
    Sketcher.Constraint("Vertical", 2),
    Sketcher.Constraint("Horizontal", 3),
    Sketcher.Constraint("DistanceX", 1, 1, 1, 2, Q("0.05 in")),
    Sketcher.Constraint("DistanceY", -1, 1, 0, 2, Q("0.1 in")),
    Sketcher.Constraint("DistanceX", -1, 1, 1, 2, Q("0.2 in")),
    Sketcher.Constraint("DistanceY", 0, 2, 0, 1, Q("0.125 in")),
])
sketch5.setExpression("Constraints[8]", "Params.sketch5_width")
sketch5.setExpression("Constraints[11]", "Params.sketch5_height")
pad5 = body.newObject("PartDesign::Pad", "Pad004")
pad5.Profile = sketch5
pad5.setExpression("Length", "Params.pad5_length")
pad5.Reversed = True
doc.recompute()

fillet = body.newObject("PartDesign::Fillet", "Fillet")
fillet.Base = (pad5, edges_at(pad5, [
    (-46.99, 4.34, -24.13),
    (-19.05, 4.34, -24.13),
    (-46.99, 4.34, 4.445),
    (-19.05, 4.34, 4.445),
]))
fillet.setExpression("Radius", "Params.fillet_radius")

# Sketch on XY plane
sketch6 = body.newObject("Sketcher::SketchObject", "Sketch005")
sketch6.AttachmentSupport = (doc.getObject("XY_Plane"), [""])
sketch6.MapMode = "FlatFace"
sketch6.AttachmentOffset = App.Placement(App.Vector(0, 0, -0.9 * 25.4), App.Rotation())
sketch6.addGeometry([
    Part.LineSegment(App.Vector(-49.5, 5.6, 0), App.Vector(-49.5, 0, 0)),
    Part.LineSegment(App.Vector(-49.5, 0, 0), App.Vector(-45, 0, 0)),
    Part.LineSegment(App.Vector(-45, 0, 0), App.Vector(-45, 5.6, 0)),
    Part.LineSegment(App.Vector(-45, 5.6, 0), App.Vector(-49.5, 5.6, 0)),
], False)
sketch6.addConstraint([
    Sketcher.Constraint("Coincident", 0, 2, 1, 1),
    Sketcher.Constraint("Coincident", 1, 2, 2, 1),
    Sketcher.Constraint("Coincident", 2, 2, 3, 1),
    Sketcher.Constraint("Coincident", 3, 2, 0, 1),
    Sketcher.Constraint("Vertical", 0),
    Sketcher.Constraint("Horizontal", 1),
    Sketcher.Constraint("Vertical", 2),
    Sketcher.Constraint("Horizontal", 3),
    Sketcher.Constraint("PointOnObject", 0, 2, -1),
    Sketcher.Constraint("DistanceX", 0, 2, -1, 1, Q("1.95 in")),
    Sketcher.Constraint("DistanceY", 0, 2, 0, 1, Q("5.61 mm")),
    Sketcher.Constraint("DistanceX", 1, 1, 1, 2, Q("4.505578 mm")),
])
pocket1 = body.newObject("PartDesign::Pocket", "Pocket")
pocket1.Profile = sketch6
pocket1.setExpression("Length", "Params.pocket1_length")

# Sketch on XY plane
sketch7 = body.newObject("Sketcher::SketchObject", "Sketch006")
sketch7.AttachmentSupport = (doc.getObject("XY_Plane"), [""])
sketch7.MapMode = "FlatFace"
sketch7.AttachmentOffset = App.Placement(App.Vector(0, 0, -0.9 * 25.4), App.Rotation())
sketch7.addGeometry([
    Part.LineSegment(App.Vector(-18.9, 5.6, 0), App.Vector(-18.9, 2.5, 0)),
    Part.LineSegment(App.Vector(-18.9, 2.5, 0), App.Vector(-16.5, 2.5, 0)),
    Part.LineSegment(App.Vector(-16.5, 2.5, 0), App.Vector(-16.5, 5.6, 0)),
    Part.LineSegment(App.Vector(-16.5, 5.6, 0), App.Vector(-18.9, 5.6, 0)),
], False)
sketch7.addConstraint([
    Sketcher.Constraint("Coincident", 0, 2, 1, 1),
    Sketcher.Constraint("Coincident", 1, 2, 2, 1),
    Sketcher.Constraint("Coincident", 2, 2, 3, 1),
    Sketcher.Constraint("Coincident", 3, 2, 0, 1),
    Sketcher.Constraint("Vertical", 0),
    Sketcher.Constraint("Horizontal", 1),
    Sketcher.Constraint("Vertical", 2),
    Sketcher.Constraint("Horizontal", 3),
    Sketcher.Constraint("DistanceY", -1, 1, 0, 2, Q("0.1 in")),
    Sketcher.Constraint("DistanceX", 1, 2, -1, 1, Q("0.65 in")),
    Sketcher.Constraint("DistanceY", 0, 2, 0, 1, Q("3.07 mm")),
    Sketcher.Constraint("DistanceX", 1, 1, 1, 2, Q("2.400871 mm")),
])
pocket2 = body.newObject("PartDesign::Pocket", "Pocket001")
pocket2.Profile = sketch7
pocket2.Type = "UpToFirst"

# Sketch on XZ plane
sketch8 = body.newObject("Sketcher::SketchObject", "Sketch007")
sketch8.AttachmentSupport = (doc.getObject("XZ_Plane"), [""])
sketch8.MapMode = "FlatFace"
sketch8.AttachmentOffset = App.Placement(App.Vector(0, 0, -0.1 * 25.4), App.Rotation())
sketch8.addGeometry([
    Part.Circle(App.Vector(-44.5, -24.1, 0), App.Vector(0, 0, 1), 1.4),
    Part.Circle(App.Vector(-21.5, -24.1, 0), App.Vector(0, 0, 1), 1.4),
], False)
sketch8.addConstraint([
    Sketcher.Constraint("Equal", 0, 1),
    Sketcher.Constraint("Horizontal", 0, 3, 1, 3),
    Sketcher.Constraint("Diameter", 0, Q("0.112 in")),
    Sketcher.Constraint("DistanceY", 0, 3, -1, 1, Q("0.95 in")),
    Sketcher.Constraint("DistanceX", 0, 3, -1, 1, Q("44.52 mm")),
    Sketcher.Constraint("DistanceX", 1, 3, -1, 1, Q("21.52 mm")),
])
sketch8.setExpression("Constraints[2]", "Params.sketch8_diameter")
pad6 = body.newObject("PartDesign::Pad", "Pad005")
pad6.Profile = sketch8
pad6.Type = "TwoLengths"
pad6.setExpression("Length", "Params.pad6_length")
pad6.setExpression("Length2", "Params.pad6_length2")
pad6.Reversed = True

# Sketch on XZ plane
sketch9 = body.newObject("Sketcher::SketchObject", "Sketch008")
sketch9.AttachmentSupport = (doc.getObject("XZ_Plane"), [""])
sketch9.MapMode = "FlatFace"
sketch9.AttachmentOffset = App.Placement(App.Vector(0, 0, -0.1 * 25.4), App.Rotation())
sketch9.addGeometry([
    Part.Circle(App.Vector(-8.9, 7.7, 0), App.Vector(0, 0, 1), 1.6),
    Part.Circle(App.Vector(-8.9, 22.9, 0), App.Vector(0, 0, 1), 1.6),
], False)
sketch9.addConstraint([
    Sketcher.Constraint("Equal", 0, 1),
    Sketcher.Constraint("Vertical", 0, 3, 1, 3),
    Sketcher.Constraint("Diameter", 0, Q("0.126 in")),
    Sketcher.Constraint("DistanceY", -1, 1, 1, 3, Q("0.9 in")),
    Sketcher.Constraint("DistanceX", 0, 3, -1, 1, Q("0.35 in")),
    Sketcher.Constraint("DistanceY", -1, 1, 0, 3, Q("0.304 in")),
])
sketch9.setExpression("Constraints[2]", "Params.sketch9_diameter")
pad7 = body.newObject("PartDesign::Pad", "Pad006")
pad7.Profile = sketch9
pad7.Type = "TwoLengths"
pad7.setExpression("Length", "Params.pad7_length")
pad7.setExpression("Length2", "Params.pad7_length2")
pad7.Reversed = True
doc.recompute()

fillet2 = body.newObject("PartDesign::Fillet", "Fillet001")
fillet2.Base = (pad7, edges_at(pad7, [
    (-45.942, 4.445, -24.13),
    (-22.942, 4.445, -24.13),
    (-10.49, 4.064, 7.722),
    (-10.49, 4.064, 22.86),
]))
fillet2.setExpression("Radius", "Params.fillet2_radius")

doc.recompute()
